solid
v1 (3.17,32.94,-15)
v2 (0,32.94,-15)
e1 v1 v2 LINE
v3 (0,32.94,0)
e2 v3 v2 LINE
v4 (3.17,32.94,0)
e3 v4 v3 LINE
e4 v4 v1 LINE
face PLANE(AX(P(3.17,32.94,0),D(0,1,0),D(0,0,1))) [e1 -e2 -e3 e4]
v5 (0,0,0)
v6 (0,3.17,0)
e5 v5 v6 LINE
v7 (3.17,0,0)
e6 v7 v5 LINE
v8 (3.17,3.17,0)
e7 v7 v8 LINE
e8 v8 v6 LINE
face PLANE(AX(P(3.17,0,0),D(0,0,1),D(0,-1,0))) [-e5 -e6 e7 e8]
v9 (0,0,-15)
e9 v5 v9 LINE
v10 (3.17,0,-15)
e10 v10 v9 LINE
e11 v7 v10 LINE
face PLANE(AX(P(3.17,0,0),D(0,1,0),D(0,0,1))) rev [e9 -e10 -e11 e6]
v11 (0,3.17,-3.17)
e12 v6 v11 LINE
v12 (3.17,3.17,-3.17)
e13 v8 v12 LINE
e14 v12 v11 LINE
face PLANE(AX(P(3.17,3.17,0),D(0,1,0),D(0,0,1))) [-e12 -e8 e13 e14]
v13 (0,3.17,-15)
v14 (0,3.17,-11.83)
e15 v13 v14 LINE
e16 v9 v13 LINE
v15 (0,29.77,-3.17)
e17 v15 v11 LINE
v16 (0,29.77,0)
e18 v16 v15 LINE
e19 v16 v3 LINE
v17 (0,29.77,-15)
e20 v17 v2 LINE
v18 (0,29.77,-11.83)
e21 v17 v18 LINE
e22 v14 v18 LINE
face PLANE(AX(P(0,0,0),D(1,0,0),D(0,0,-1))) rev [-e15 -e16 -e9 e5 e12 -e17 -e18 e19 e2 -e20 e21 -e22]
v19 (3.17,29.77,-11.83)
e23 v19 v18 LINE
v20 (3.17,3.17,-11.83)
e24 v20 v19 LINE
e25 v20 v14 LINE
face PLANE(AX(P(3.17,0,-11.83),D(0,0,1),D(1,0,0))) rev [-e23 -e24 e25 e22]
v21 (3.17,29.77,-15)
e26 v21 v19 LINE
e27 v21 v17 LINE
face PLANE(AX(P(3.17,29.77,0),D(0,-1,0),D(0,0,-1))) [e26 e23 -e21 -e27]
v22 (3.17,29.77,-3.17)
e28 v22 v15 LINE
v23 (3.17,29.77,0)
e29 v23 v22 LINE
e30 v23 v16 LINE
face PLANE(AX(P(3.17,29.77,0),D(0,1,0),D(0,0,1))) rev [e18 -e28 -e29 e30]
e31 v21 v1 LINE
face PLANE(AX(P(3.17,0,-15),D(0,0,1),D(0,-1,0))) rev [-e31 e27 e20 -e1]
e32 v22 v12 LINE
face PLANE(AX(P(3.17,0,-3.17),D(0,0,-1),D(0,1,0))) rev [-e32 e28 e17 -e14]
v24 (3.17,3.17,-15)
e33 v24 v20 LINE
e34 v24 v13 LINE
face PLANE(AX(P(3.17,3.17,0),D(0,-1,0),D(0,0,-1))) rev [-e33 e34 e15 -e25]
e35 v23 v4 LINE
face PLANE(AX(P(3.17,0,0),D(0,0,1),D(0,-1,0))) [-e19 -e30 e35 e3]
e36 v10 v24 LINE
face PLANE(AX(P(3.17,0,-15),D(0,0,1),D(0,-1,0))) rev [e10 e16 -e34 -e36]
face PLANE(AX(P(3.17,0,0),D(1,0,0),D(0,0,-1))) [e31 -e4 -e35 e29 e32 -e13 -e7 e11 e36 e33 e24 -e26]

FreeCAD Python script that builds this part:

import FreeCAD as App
import Part
import Sketcher
from FreeCAD import Vector

doc = App.newDocument("Part")
body = doc.addObject("PartDesign::Body", "Body")

# Sketch on YZ plane
sketch1 = doc.addObject("Sketcher::SketchObject", "Sketch")
body.addObject(sketch1)
sketch1.AttachmentSupport = (doc.YZ_Plane, [""])
sketch1.MapMode = "FlatFace"
sketch1.addGeometry([
    Part.LineSegment(Vector(29.8, -11.8, 0), Vector(29.8, -15, 0)),  # 0
    Part.LineSegment(Vector(29.8, -15, 0), Vector(32.9, -15, 0)),  # 1
    Part.LineSegment(Vector(32.9, -15, 0), Vector(32.9, 0, 0)),  # 2
    Part.LineSegment(Vector(32.9, 0, 0), Vector(29.8, 0, 0)),  # 3
    Part.LineSegment(Vector(29.8, 0, 0), Vector(29.8, -3.2, 0)),  # 4
    Part.LineSegment(Vector(29.8, -3.2, 0), Vector(3.2, -3.2, 0)),  # 5
    Part.LineSegment(Vector(3.2, -3.2, 0), Vector(3.2, 0, 0)),  # 6
    Part.LineSegment(Vector(3.2, 0, 0), Vector(0, 0, 0)),  # 7
    Part.LineSegment(Vector(0, 0, 0), Vector(0, -15, 0)),  # 8
    Part.LineSegment(Vector(0, -15, 0), Vector(3.2, -15, 0)),  # 9
    Part.LineSegment(Vector(3.2, -15, 0), Vector(3.2, -11.8, 0)),  # 10
    Part.LineSegment(Vector(3.2, -11.8, 0), Vector(29.8, -11.8, 0)),  # 11
], False)
sketch1.addConstraint([
    Sketcher.Constraint("Coincident", 0, 2, 1, 1),
    Sketcher.Constraint("Coincident", 1, 2, 2, 1),
    Sketcher.Constraint("Coincident", 2, 2, 3, 1),
    Sketcher.Constraint("Coincident", 3, 2, 4, 1),
    Sketcher.Constraint("Coincident", 4, 2, 5, 1),
    Sketcher.Constraint("Coincident", 5, 2, 6, 1),
    Sketcher.Constraint("Coincident", 6, 2, 7, 1),
    Sketcher.Constraint("Coincident", 7, 2, 8, 1),
    Sketcher.Constraint("Coincident", 8, 2, 9, 1),
    Sketcher.Constraint("Coincident", 9, 2, 10, 1),
    Sketcher.Constraint("Coincident", 10, 2, 11, 1),
    Sketcher.Constraint("Coincident", 11, 2, 0, 1),
    Sketcher.Constraint("Vertical", 0),
    Sketcher.Constraint("Horizontal", 1),
    Sketcher.Constraint("Vertical", 2),
    Sketcher.Constraint("Horizontal", 3),
    Sketcher.Constraint("Vertical", 4),
    Sketcher.Constraint("Horizontal", 5),
    Sketcher.Constraint("Vertical", 6),
    Sketcher.Constraint("Horizontal", 7),
    Sketcher.Constraint("Vertical", 8),
    Sketcher.Constraint("Horizontal", 9),
    Sketcher.Constraint("Vertical", 10),
    Sketcher.Constraint("Horizontal", 11),
    Sketcher.Constraint("Coincident", 7, 2, -1, 1),
    Sketcher.Constraint("PointOnObject", 2, 2, -1),
    Sketcher.Constraint("Horizontal", 1, 2, 8, 2),
    Sketcher.Constraint("Vertical", 0, 2, 3, 2),
    Sketcher.Constraint("Vertical", 6, 2, 9, 2),
    Sketcher.Constraint("Equal", 3, 7),
    Sketcher.Constraint("Equal", 9, 0),
    Sketcher.Constraint("Equal", 0, 4),
    Sketcher.Constraint("DistanceY", 2, 1, 2, 2, 15.0),
    Sketcher.Constraint("DistanceX", 5, 2, 5, 1, 26.6),
    Sketcher.Constraint("DistanceX", 1, 1, 1, 2, 3.17),
])
pad1 = doc.addObject("PartDesign::Pad", "Pad")
body.addObject(pad1)
pad1.Profile = sketch1
pad1.Length = 3.17

doc.recompute()
